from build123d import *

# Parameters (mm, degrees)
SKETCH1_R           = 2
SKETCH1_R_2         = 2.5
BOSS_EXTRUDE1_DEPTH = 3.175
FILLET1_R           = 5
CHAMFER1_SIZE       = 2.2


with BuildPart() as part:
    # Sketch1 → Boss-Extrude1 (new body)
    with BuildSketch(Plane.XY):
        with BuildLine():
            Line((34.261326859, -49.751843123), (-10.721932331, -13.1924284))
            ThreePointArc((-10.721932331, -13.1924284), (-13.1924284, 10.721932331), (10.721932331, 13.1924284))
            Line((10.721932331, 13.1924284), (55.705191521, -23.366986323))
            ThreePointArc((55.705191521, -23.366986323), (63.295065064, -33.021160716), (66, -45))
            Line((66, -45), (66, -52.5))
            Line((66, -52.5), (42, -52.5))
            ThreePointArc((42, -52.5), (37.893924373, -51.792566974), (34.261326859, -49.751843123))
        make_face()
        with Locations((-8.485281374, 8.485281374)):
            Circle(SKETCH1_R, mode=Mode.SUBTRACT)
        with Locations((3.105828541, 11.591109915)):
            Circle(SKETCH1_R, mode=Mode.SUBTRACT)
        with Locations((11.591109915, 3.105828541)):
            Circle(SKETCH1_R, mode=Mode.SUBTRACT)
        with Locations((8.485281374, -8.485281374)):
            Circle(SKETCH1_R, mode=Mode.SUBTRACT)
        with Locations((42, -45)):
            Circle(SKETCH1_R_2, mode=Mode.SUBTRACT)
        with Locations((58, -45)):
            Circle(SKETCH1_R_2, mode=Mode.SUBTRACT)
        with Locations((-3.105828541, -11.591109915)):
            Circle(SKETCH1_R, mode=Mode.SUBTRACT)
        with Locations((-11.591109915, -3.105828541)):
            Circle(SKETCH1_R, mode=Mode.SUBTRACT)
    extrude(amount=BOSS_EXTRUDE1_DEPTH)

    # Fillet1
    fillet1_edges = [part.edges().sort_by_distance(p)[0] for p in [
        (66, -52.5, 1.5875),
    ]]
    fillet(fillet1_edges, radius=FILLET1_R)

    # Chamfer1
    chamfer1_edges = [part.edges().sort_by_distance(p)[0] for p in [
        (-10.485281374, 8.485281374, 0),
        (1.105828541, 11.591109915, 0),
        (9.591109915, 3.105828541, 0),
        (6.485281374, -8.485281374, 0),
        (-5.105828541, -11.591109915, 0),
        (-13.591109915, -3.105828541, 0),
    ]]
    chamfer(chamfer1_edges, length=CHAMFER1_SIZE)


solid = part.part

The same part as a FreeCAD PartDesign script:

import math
import FreeCAD as App
import Part
import Sketcher

V = App.Vector
Q = App.Units.Quantity


def edges_at(feature, points):
    """Names of the edges that pass closest to the given points."""
    edges = feature.Shape.Edges
    near = lambda p: min(range(len(edges)), key=lambda i: edges[i].distToShape(Part.Vertex(*p))[0])
    return sorted({f"Edge{near(p) + 1}" for p in points})

doc = App.newDocument("Part")
body = doc.addObject("PartDesign::Body", "Body")

sketch1 = body.newObject("Sketcher::SketchObject", "Sketch")
sketch1.AttachmentSupport = (doc.getObject("XY_Plane"), [""])
sketch1.MapMode = "FlatFace"
sketch1.addGeometry([
    Part.LineSegment(V(-10.721932, -13.192428, 0), V(34.261327, -49.751843, 0)),
    Part.ArcOfCircle(Part.Circle(V(42, -40.230062, 0), V(0, 0, 1), 12.269938), math.radians(-129.101927), math.radians(-90)),
    Part.LineSegment(V(42, -52.5, 0), V(66, -52.5, 0)),
    Part.LineSegment(V(66, -52.5, 0), V(66, -45, 0)),
    Part.ArcOfCircle(Part.Circle(V(38.12331, -45, 0), V(0, 0, 1), 27.87669), math.radians(0), math.radians(50.898073)),
    Part.LineSegment(V(55.705192, -23.366986, 0), V(10.721932, 13.192428, 0)),
    Part.ArcOfCircle(Part.Circle(V(0, 0, 0), V(0, 0, 1), 17), math.radians(50.898073), math.radians(230.898073)),
    Part.Circle(V(58, -45, 0), V(0, 0, 1), 2.5),
    Part.Circle(V(42, -45, 0), V(0, 0, 1), 2.5),
    Part.Circle(V(8.485281, -8.485281, 0), V(0, 0, 1), 2),
    Part.Circle(V(-3.105829, -11.59111, 0), V(0, 0, 1), 2),
    Part.Circle(V(-11.59111, -3.105829, 0), V(0, 0, 1), 2),
    Part.Circle(V(11.59111, 3.105829, 0), V(0, 0, 1), 2),
    Part.Circle(V(3.105829, 11.59111, 0), V(0, 0, 1), 2),
    Part.Circle(V(-8.485281, 8.485281, 0), V(0, 0, 1), 2),
], False)
sketch1.addConstraint([
    Sketcher.Constraint("Tangent", 0, 2, 1, 1),
    Sketcher.Constraint("Tangent", 1, 2, 2, 1),
    Sketcher.Constraint("Coincident", 2, 2, 3, 1),
    Sketcher.Constraint("Tangent", 3, 2, 4, 1),
    Sketcher.Constraint("Tangent", 4, 2, 5, 1),
    Sketcher.Constraint("Tangent", 5, 2, 6, 1),
    Sketcher.Constraint("Tangent", 6, 2, 0, 1),
    Sketcher.Constraint("Horizontal", 2),
    Sketcher.Constraint("Vertical", 3),
    Sketcher.Constraint("Coincident", 6, 3, -1, 1),
    Sketcher.Constraint("Equal", 7, 8),
    Sketcher.Constraint("Equal", 9, 10),
    Sketcher.Constraint("Equal", 10, 11),
    Sketcher.Constraint("Equal", 11, 12),
    Sketcher.Constraint("Equal", 12, 13),
    Sketcher.Constraint("Equal", 13, 14),
    Sketcher.Constraint("Symmetric", 11, 3, 12, 3, -1, 1),
    Sketcher.Constraint("Symmetric", 10, 3, 13, 3, -1, 1),
    Sketcher.Constraint("Symmetric", 9, 3, 14, 3, -1, 1),
    Sketcher.Constraint("Parallel", 0, 5),
    Sketcher.Constraint("Horizontal", 4, 3, 7, 3),
    Sketcher.Constraint("Horizontal", 7, 3, 8, 3),
    Sketcher.Constraint("Vertical", 1, 3, 8, 3),
    Sketcher.Constraint("Equal", 0, 5),
    Sketcher.Constraint("Diameter", 7, Q("5 mm")),
    Sketcher.Constraint("Diameter", 9, Q("4 mm")),
    Sketcher.Constraint("Radius", 6, Q("17 mm")),
    Sketcher.Constraint("DistanceX", 2, 1, 2, 2, Q("24 mm")),
    Sketcher.Constraint("DistanceY", 3, 1, 3, 2, Q("7.5 mm")),
    Sketcher.Constraint("DistanceX", -1, 1, 1, 3, Q("42 mm")),
    Sketcher.Constraint("DistanceY", 4, 3, -1, 1, Q("45 mm")),
    Sketcher.Constraint("DistanceX", -1, 1, 7, 3, Q("58 mm")),
    Sketcher.Constraint("DistanceY", 12, 3, 5, 2, Q("10.0866 mm")),
    Sketcher.Constraint("DistanceX", -1, 1, 9, 3, Q("8.485281 mm")),
    Sketcher.Constraint("DistanceY", 9, 3, -1, 1, Q("8.485281 mm")),
    Sketcher.Constraint("DistanceX", 10, 3, -1, 1, Q("3.105829 mm")),
    Sketcher.Constraint("DistanceY", 10, 3, -1, 1, Q("11.59111 mm")),
    Sketcher.Constraint("DistanceX", 11, 3, -1, 1, Q("11.59111 mm")),
])
pad1 = body.newObject("PartDesign::Pad", "Pad")
pad1.Profile = sketch1
pad1.Length = 3.175
doc.recompute()

fillet = body.newObject("PartDesign::Fillet", "Fillet")
fillet.Base = (pad1, edges_at(pad1, [(66, -52.5, 1.587)]))
fillet.Radius = 5
doc.recompute()

chamfer = body.newObject("PartDesign::Chamfer", "Chamfer")
chamfer.Base = (fillet, edges_at(fillet, [
    (-10.485, 8.485, 0),
    (1.106, 11.591, 0),
    (9.591, 3.106, 0),
    (6.485, -8.485, 0),
    (-5.106, -11.591, 0),
    (-13.591, -3.106, 0),
]))
chamfer.Size = 2.2

doc.recompute()
